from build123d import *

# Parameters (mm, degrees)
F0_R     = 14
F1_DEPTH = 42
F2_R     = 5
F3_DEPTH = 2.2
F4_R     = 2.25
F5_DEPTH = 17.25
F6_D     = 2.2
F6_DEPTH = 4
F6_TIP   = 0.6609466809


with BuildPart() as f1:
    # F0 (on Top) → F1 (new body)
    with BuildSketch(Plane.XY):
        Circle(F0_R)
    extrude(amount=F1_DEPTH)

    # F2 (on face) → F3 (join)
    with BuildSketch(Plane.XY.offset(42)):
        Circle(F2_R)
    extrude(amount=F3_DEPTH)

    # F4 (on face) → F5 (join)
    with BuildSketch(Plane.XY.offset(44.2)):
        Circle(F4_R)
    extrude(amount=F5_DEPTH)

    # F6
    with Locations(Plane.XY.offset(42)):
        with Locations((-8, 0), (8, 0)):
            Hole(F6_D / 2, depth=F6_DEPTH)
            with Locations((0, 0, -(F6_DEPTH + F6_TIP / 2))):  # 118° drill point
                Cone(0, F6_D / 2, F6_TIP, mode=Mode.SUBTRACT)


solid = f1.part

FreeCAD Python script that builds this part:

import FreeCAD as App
import Part
import Sketcher
Q = App.Units.Quantity

doc = App.newDocument("Part")
body = doc.addObject("PartDesign::Body", "Body")

sketch1 = body.newObject("Sketcher::SketchObject", "Sketch")
sketch1.AttachmentSupport = (doc.getObject("XY_Plane"), [""])
sketch1.MapMode = "FlatFace"
sketch1.addGeometry(Part.Circle(App.Vector(0, 0, 0), App.Vector(0, 0, 1), 14), False)
sketch1.addConstraint([
    Sketcher.Constraint("Coincident", 0, 3, -1, 1),
    Sketcher.Constraint("Diameter", 0, Q("28 mm")),
])
pad1 = body.newObject("PartDesign::Pad", "Pad")
pad1.Profile = sketch1
pad1.Length = 42

sketch2 = body.newObject("Sketcher::SketchObject", "Sketch001")
sketch2.AttachmentSupport = (doc.getObject("XY_Plane"), [""])
sketch2.MapMode = "FlatFace"
sketch2.AttachmentOffset = App.Placement(App.Vector(0, 0, 42), App.Rotation())
sketch2.addGeometry(Part.Circle(App.Vector(0, 0, 0), App.Vector(0, 0, 1), 5), False)
sketch2.addConstraint([
    Sketcher.Constraint("Coincident", 0, 3, -1, 1),
    Sketcher.Constraint("Diameter", 0, Q("10 mm")),
])
pad2 = body.newObject("PartDesign::Pad", "Pad001")
pad2.Profile = sketch2
pad2.Length = 2.2

sketch3 = body.newObject("Sketcher::SketchObject", "Sketch002")
sketch3.AttachmentSupport = (doc.getObject("XY_Plane"), [""])
sketch3.MapMode = "FlatFace"
sketch3.AttachmentOffset = App.Placement(App.Vector(0, 0, 44.2), App.Rotation())
sketch3.addGeometry(Part.Circle(App.Vector(0, 0, 0), App.Vector(0, 0, 1), 2.2), False)
sketch3.addConstraint([
    Sketcher.Constraint("Coincident", 0, 3, -1, 1),
    Sketcher.Constraint("Diameter", 0, Q("4.5 mm")),
])
pad3 = body.newObject("PartDesign::Pad", "Pad002")
pad3.Profile = sketch3
pad3.Length = 17.25

sketch4 = body.newObject("Sketcher::SketchObject", "Sketch003")
sketch4.AttachmentSupport = (doc.getObject("XY_Plane"), [""])
sketch4.MapMode = "FlatFace"
sketch4.AttachmentOffset = App.Placement(App.Vector(0, 0, 42), App.Rotation())
sketch4.addGeometry([
    Part.Circle(App.Vector(-8, 0, 0), App.Vector(0, 0, 1), 1.1),
    Part.Circle(App.Vector(8, 0, 0), App.Vector(0, 0, 1), 1.1),
], False)
sketch4.addConstraint([
    Sketcher.Constraint("Equal", 0, 1),
    Sketcher.Constraint("Symmetric", 0, 3, 1, 3, -1, 1),
    Sketcher.Constraint("PointOnObject", 0, 3, -1),
    Sketcher.Constraint("Diameter", 0, Q("2.2 mm")),
    Sketcher.Constraint("DistanceX", 0, 3, -1, 1, Q("8 mm")),
])
doc.recompute()
hole = body.newObject("PartDesign::Hole", "Hole")
hole.Profile = sketch4
hole.ThreadType = "None"
hole.Diameter = 2.2
hole.DepthType = "Dimension"
hole.Depth = 4
hole.DrillPoint = "Angled"
hole.DrillPointAngle = 118

doc.recompute()
